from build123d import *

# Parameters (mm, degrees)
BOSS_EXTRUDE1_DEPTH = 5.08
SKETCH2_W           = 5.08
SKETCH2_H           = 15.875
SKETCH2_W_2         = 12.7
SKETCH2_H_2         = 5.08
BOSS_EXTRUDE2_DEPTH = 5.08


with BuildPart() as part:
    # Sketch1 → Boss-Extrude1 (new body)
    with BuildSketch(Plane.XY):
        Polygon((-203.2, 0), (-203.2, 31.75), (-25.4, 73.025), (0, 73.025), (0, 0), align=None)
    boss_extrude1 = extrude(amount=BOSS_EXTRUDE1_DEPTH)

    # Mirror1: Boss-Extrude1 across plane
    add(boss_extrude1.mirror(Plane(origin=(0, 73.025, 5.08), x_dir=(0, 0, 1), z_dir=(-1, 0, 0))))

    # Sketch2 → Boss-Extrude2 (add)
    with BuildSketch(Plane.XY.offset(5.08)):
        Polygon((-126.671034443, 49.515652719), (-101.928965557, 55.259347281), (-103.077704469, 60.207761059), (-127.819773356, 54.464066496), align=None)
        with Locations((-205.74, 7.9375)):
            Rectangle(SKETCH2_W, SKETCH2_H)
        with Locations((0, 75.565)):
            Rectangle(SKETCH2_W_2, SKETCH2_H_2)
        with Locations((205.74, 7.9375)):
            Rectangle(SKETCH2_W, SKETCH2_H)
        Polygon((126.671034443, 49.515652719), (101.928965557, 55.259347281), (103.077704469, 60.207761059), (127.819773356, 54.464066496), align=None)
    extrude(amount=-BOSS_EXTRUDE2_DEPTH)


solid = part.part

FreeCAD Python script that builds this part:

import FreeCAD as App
import Part
import Sketcher

V = App.Vector
Q = App.Units.Quantity


def add_polygon(sketch, points):
    """Adds a closed chain of lines whose ends are joined by coincident constraints."""
    first, n = sketch.GeometryCount, len(points)
    for a, b in zip(points, points[1:] + points[:1]):
        sketch.addGeometry(Part.LineSegment(App.Vector(*a, 0), App.Vector(*b, 0)), False)
    for i in range(n):
        sketch.addConstraint(Sketcher.Constraint("Coincident", first + i, 2, first + (i + 1) % n, 1))

doc = App.newDocument("Part")
body = doc.addObject("PartDesign::Body", "Body")

# Sketch on XY plane
sketch1 = body.newObject("Sketcher::SketchObject", "Sketch")
sketch1.AttachmentSupport = (doc.getObject("XY_Plane"), [""])
sketch1.MapMode = "FlatFace"
add_polygon(sketch1, [(-203.2, 31.75), (-203.2, 0), (0, 0), (0, 73.025), (-25.4, 73.025)])  # lines 0-4
sketch1.addConstraint([
    Sketcher.Constraint("Vertical", 0),
    Sketcher.Constraint("Horizontal", 1),
    Sketcher.Constraint("Vertical", 2),
    Sketcher.Constraint("Horizontal", 3),
    Sketcher.Constraint("Coincident", 1, 2, -1, 1),
    Sketcher.Constraint("DistanceX", 1, 1, 1, 2, Q("8 in")),
    Sketcher.Constraint("DistanceX", 3, 2, 3, 1, Q("1 in")),
    Sketcher.Constraint("DistanceY", 0, 2, 0, 1, Q("1.25 in")),
    Sketcher.Constraint("DistanceY", 2, 1, 2, 2, Q("2.875 in")),
])
pad1 = body.newObject("PartDesign::Pad", "Pad")
pad1.Profile = sketch1
pad1.Length = Q("0.2 in")
doc.recompute()

mirrored = body.newObject("PartDesign::Mirrored", "Mirrored")
mirrored.Originals = [pad1]
mirrored.MirrorPlane = (doc.getObject("YZ_Plane"), [""])
body.Tip = mirrored

# Sketch on XY plane
sketch2 = body.newObject("Sketcher::SketchObject", "Sketch001")
sketch2.AttachmentSupport = (doc.getObject("XY_Plane"), [""])
sketch2.MapMode = "FlatFace"
sketch2.AttachmentOffset = App.Placement(V(0, 0, 0.2 * 25.4), App.Rotation())
add_polygon(sketch2, [(-126.671034, 49.515653), (-101.928966, 55.259347), (-103.077704, 60.207761), (-127.819773, 54.464066)])  # lines 0-3
add_polygon(sketch2, [(-208.28, 15.875), (-208.28, 0), (-203.2, 0), (-203.2, 15.875)])  # lines 4-7
add_polygon(sketch2, [(-6.35, 78.105), (-6.35, 73.025), (6.35, 73.025), (6.35, 78.105)])  # lines 8-11
add_polygon(sketch2, [(203.2, 15.875), (203.2, 0), (208.28, 0), (208.28, 15.875)])  # lines 12-15
add_polygon(sketch2, [(101.928966, 55.259347), (126.671034, 49.515653), (127.819773, 54.464066), (103.077704, 60.207761)])  # lines 16-19
sketch2.addConstraint([
    Sketcher.Constraint("Vertical", 4),
    Sketcher.Constraint("Horizontal", 5),
    Sketcher.Constraint("Vertical", 6),
    Sketcher.Constraint("Horizontal", 7),
    Sketcher.Constraint("Vertical", 8),
    Sketcher.Constraint("Horizontal", 9),
    Sketcher.Constraint("Vertical", 10),
    Sketcher.Constraint("Horizontal", 11),
    Sketcher.Constraint("Vertical", 12),
    Sketcher.Constraint("Horizontal", 13),
    Sketcher.Constraint("Vertical", 14),
    Sketcher.Constraint("Horizontal", 15),
    Sketcher.Constraint("Symmetric", 5, 2, 12, 2, -1, 1),
    Sketcher.Constraint("Symmetric", 4, 2, 13, 2, -2),
    Sketcher.Constraint("Symmetric", 3, 2, 16, 2, -2),
    Sketcher.Constraint("Symmetric", 2, 2, 17, 2, -2),
    Sketcher.Constraint("Symmetric", 1, 2, 18, 2, -2),
    Sketcher.Constraint("Symmetric", 0, 2, 19, 2, -2),
    Sketcher.Constraint("Perpendicular", 0, 1),
    Sketcher.Constraint("Perpendicular", 1, 2),
    Sketcher.Constraint("Perpendicular", 2, 3),
    Sketcher.Constraint("Horizontal", 7, 2, 14, 2),
    Sketcher.Constraint("Equal", 15, 8),
    Sketcher.Constraint("Distance", 0, Q("1 in")),
    Sketcher.Constraint("DistanceX", 5, 1, 5, 2, Q("0.2 in")),
    Sketcher.Constraint("DistanceX", 9, 1, 9, 2, Q("0.5 in")),
    Sketcher.Constraint("DistanceX", 5, 2, -1, 1, Q("8 in")),
    Sketcher.Constraint("Distance", 1, Q("0.2 in")),
    Sketcher.Constraint("DistanceY", 4, 2, 4, 1, Q("0.625 in")),
    Sketcher.Constraint("DistanceX", 8, 2, -1, 1, Q("0.25 in")),
    Sketcher.Constraint("DistanceY", 6, 2, 8, 2, Q("2.25 in")),
    Sketcher.Constraint("DistanceY", -1, 1, 1, 2, Q("60.207761 mm")),
    Sketcher.Constraint("DistanceX", 1, 2, 0, 2, Q("1.148739 mm")),
    Sketcher.Constraint("DistanceX", 0, 2, -1, 1, Q("101.928966 mm")),
])
pad2 = body.newObject("PartDesign::Pad", "Pad001")
pad2.Profile = sketch2
pad2.Length = Q("0.2 in")
pad2.Reversed = True

doc.recompute()
